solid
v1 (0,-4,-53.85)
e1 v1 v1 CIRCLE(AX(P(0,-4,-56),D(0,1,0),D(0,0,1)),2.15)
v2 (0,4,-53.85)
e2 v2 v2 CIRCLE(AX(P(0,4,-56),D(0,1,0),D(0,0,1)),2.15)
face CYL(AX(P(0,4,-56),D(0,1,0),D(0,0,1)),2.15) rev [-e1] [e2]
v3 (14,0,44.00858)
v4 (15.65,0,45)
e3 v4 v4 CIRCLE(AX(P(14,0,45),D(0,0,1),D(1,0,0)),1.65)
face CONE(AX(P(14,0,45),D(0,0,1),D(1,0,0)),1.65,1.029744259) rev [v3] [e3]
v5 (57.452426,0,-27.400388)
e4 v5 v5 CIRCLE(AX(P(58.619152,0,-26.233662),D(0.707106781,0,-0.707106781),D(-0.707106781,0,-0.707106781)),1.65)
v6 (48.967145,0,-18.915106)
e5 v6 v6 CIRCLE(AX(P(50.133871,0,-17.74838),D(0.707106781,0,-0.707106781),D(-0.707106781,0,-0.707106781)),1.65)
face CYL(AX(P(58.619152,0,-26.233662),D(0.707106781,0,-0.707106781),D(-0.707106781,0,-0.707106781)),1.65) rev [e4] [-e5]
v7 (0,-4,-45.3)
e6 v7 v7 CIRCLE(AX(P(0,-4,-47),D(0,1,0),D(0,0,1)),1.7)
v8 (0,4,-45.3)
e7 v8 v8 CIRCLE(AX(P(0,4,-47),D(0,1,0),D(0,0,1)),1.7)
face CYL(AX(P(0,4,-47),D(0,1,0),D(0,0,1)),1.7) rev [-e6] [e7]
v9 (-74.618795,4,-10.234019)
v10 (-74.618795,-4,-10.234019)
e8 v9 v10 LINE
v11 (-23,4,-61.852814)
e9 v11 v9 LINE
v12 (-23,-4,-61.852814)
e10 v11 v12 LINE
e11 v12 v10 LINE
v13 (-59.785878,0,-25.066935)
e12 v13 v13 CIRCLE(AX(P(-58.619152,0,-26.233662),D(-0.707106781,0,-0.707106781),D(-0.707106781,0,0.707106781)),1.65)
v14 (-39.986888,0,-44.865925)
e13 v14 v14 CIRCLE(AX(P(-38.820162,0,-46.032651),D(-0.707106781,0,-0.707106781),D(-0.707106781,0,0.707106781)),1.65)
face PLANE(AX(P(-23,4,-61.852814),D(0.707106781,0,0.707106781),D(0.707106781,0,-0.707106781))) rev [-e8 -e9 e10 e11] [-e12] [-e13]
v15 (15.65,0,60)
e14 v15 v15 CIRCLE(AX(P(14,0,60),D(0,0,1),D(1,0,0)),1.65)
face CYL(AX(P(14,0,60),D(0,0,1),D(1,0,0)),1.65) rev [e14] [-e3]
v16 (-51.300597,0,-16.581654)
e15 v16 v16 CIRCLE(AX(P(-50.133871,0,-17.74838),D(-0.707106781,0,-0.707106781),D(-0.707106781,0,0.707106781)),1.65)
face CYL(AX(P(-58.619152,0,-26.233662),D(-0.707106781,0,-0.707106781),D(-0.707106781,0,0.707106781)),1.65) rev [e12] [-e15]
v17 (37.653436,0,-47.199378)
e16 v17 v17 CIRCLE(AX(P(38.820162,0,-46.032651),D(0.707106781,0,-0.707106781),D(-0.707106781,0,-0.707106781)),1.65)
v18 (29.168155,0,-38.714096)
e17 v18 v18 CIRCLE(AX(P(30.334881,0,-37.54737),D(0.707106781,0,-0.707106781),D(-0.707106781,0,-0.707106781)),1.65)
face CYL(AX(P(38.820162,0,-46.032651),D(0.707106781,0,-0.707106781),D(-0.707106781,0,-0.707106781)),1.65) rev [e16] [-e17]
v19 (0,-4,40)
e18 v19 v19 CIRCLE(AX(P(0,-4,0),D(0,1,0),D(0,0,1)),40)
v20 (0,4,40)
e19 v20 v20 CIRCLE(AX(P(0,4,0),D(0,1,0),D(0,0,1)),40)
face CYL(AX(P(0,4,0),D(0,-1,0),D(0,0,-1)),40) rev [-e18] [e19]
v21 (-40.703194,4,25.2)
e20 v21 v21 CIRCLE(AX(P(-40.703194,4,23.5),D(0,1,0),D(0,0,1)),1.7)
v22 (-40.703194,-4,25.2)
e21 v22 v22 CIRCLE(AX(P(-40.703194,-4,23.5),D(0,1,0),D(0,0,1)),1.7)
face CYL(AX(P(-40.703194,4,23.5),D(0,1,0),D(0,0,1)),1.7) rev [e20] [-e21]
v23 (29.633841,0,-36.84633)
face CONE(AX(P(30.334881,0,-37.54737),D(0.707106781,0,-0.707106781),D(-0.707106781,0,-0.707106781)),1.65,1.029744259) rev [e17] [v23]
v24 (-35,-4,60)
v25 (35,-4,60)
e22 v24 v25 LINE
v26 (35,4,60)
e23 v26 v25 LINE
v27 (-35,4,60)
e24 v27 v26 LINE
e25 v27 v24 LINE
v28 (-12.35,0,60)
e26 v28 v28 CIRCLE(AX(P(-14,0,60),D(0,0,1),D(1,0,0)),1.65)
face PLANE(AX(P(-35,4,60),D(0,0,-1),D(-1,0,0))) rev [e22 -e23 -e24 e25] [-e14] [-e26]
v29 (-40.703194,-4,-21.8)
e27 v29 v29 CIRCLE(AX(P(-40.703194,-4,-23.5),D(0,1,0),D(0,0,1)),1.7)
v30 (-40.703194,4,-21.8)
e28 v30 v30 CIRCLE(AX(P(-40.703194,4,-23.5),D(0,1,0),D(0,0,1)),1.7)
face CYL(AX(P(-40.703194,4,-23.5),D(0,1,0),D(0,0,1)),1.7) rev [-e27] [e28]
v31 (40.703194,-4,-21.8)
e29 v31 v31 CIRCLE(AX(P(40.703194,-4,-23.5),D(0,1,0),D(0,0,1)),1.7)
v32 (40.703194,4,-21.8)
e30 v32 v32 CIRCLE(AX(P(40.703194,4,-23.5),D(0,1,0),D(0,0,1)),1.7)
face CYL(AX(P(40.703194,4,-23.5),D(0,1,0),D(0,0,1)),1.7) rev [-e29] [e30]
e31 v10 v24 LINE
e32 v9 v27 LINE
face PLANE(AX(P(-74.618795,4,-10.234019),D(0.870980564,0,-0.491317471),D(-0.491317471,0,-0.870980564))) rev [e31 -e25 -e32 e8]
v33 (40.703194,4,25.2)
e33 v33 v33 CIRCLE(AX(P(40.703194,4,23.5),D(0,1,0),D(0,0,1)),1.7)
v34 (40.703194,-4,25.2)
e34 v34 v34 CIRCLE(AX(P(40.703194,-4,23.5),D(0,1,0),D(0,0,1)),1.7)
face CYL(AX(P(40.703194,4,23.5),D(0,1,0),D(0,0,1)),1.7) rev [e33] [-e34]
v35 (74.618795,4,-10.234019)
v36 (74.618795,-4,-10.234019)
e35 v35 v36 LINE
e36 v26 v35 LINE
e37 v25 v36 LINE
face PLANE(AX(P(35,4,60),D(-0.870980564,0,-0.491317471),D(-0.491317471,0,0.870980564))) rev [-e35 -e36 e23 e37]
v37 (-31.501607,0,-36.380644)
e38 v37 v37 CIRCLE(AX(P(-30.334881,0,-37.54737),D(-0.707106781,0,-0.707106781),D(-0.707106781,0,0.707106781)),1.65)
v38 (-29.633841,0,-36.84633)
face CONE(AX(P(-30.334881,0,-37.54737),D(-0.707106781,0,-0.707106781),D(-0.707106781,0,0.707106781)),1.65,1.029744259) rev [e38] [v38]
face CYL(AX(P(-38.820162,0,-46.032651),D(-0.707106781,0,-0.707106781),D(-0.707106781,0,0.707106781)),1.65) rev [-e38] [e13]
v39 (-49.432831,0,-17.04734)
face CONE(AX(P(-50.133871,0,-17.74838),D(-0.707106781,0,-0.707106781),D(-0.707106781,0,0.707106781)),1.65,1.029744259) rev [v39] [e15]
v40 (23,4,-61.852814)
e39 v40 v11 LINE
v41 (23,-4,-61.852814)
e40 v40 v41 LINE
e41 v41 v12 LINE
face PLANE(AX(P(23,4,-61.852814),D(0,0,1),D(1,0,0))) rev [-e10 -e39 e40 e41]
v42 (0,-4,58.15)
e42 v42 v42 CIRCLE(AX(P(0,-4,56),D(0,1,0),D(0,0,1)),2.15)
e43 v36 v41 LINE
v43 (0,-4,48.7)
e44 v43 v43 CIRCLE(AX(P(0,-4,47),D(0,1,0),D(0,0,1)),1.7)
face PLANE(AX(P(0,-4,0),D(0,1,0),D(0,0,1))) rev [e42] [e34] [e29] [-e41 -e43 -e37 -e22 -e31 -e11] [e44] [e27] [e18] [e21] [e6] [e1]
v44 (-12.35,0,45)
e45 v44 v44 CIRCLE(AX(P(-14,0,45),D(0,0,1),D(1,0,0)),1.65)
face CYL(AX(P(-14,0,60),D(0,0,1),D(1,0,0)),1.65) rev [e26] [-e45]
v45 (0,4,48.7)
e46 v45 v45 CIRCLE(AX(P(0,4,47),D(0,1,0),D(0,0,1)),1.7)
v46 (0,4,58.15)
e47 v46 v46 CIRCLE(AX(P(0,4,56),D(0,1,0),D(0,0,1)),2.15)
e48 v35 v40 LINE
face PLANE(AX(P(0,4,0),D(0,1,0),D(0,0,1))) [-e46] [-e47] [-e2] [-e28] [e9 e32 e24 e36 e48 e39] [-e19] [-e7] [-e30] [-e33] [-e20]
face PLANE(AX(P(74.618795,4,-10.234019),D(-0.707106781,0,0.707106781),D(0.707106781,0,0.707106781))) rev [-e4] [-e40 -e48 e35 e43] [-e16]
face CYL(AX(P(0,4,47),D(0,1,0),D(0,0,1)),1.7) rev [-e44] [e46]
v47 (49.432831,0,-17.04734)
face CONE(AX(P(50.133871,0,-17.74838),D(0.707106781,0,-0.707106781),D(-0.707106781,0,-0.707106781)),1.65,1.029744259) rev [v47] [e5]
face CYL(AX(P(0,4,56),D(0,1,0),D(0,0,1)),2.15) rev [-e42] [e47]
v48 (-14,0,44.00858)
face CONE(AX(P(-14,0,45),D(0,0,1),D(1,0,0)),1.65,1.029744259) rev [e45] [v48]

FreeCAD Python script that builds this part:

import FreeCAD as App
import Part
import Sketcher
from FreeCAD import Vector
Q = App.Units.Quantity


def add_polygon(sketch, points):
    """Adds a closed chain of lines whose ends are joined by coincident constraints."""
    first, n = sketch.GeometryCount, len(points)
    for a, b in zip(points, points[1:] + points[:1]):
        sketch.addGeometry(Part.LineSegment(App.Vector(*a, 0), App.Vector(*b, 0)), False)
    for i in range(n):
        sketch.addConstraint(Sketcher.Constraint("Coincident", first + i, 2, first + (i + 1) % n, 1))

doc = App.newDocument("Part")
body = doc.addObject("PartDesign::Body", "Body")

sketch1 = body.newObject("Sketcher::SketchObject", "Sketch")
sketch1.AttachmentSupport = (doc.getObject("XZ_Plane"), [""])
sketch1.MapMode = "FlatFace"
add_polygon(sketch1, [(23, -62), (-23, -62), (-75, -10), (-35, 60), (35, 60), (75, -10)])
sketch1.addGeometry(Part.Circle(Vector(0, 0, 0), Vector(0, 0, 1), 40), False)
sketch1.addConstraint([
    Sketcher.Constraint("Horizontal", 0),
    Sketcher.Constraint("Horizontal", 3),
    Sketcher.Constraint("Coincident", 6, 3, -1, 1),
    Sketcher.Constraint("Symmetric", 1, 2, 4, 2, -2),
    Sketcher.Constraint("Perpendicular", 1, 5),
    Sketcher.Constraint("Equal", 2, 4),
    Sketcher.Constraint("Equal", 1, 5),
    Sketcher.Constraint("Diameter", 6, 80.0),
    Sketcher.Constraint("DistanceX", 0, 2, 0, 1, 46.0),
    Sketcher.Constraint("DistanceX", 3, 1, 3, 2, 70.0),
    Sketcher.Constraint("Distance", 1, 73.0),
    Sketcher.Constraint("DistanceY", -1, 1, 2, 2, 60.0),
    Sketcher.Constraint("Distance", 2, 80.637871),
])
pad1 = body.newObject("PartDesign::Pad", "Pad")
pad1.Profile = sketch1
pad1.Length = 8
pad1.Midplane = True

sketch2 = body.newObject("Sketcher::SketchObject", "Sketch001")
sketch2.AttachmentSupport = (doc.getObject("XZ_Plane"), [""])
sketch2.MapMode = "FlatFace"
sketch2.AttachmentOffset = App.Placement(Vector(0, 0, -4), App.Rotation())
sketch2.addGeometry([
    Part.Circle(Vector(0, -47, 0), Vector(0, 0, 1), 1.7),
    Part.Circle(Vector(40.7, -23.5, 0), Vector(0, 0, 1), 1.7),
    Part.Circle(Vector(40.7, 23.5, 0), Vector(0, 0, 1), 1.7),
    Part.Circle(Vector(0, 47, 0), Vector(0, 0, 1), 1.7),
    Part.Circle(Vector(-40.7, 23.5, 0), Vector(0, 0, 1), 1.7),
    Part.Circle(Vector(-40.7, -23.5, 0), Vector(0, 0, 1), 1.7),
], False)
sketch2.addConstraint([
    Sketcher.Constraint("Equal", 0, 1),
    Sketcher.Constraint("Equal", 1, 2),
    Sketcher.Constraint("Equal", 2, 3),
    Sketcher.Constraint("Equal", 3, 4),
    Sketcher.Constraint("Equal", 4, 5),
    Sketcher.Constraint("Symmetric", 0, 3, 3, 3, -1, 1),
    Sketcher.Constraint("Symmetric", 1, 3, 4, 3, -1, 1),
    Sketcher.Constraint("Symmetric", 2, 3, 5, 3, -1, 1),
    Sketcher.Constraint("Symmetric", 2, 3, 4, 3, -2),
    Sketcher.Constraint("PointOnObject", 0, 3, -2),
    Sketcher.Constraint("Diameter", 0, 3.4),
    Sketcher.Constraint("DistanceY", 0, 3, -1, 1, 47.0),
    Sketcher.Constraint("DistanceY", 1, 3, 2, 3, 47.0),
    Sketcher.Constraint("DistanceX", -1, 1, 1, 3, 40.703194),
])
doc.recompute()
hole = body.newObject("PartDesign::Hole", "Hole")
hole.Profile = sketch2
hole.ThreadType = "None"
hole.Diameter = 3.4
hole.DepthType = "ThroughAll"
hole.Reversed = True

sketch3 = body.newObject("Sketcher::SketchObject", "Sketch002")
sketch3.AttachmentSupport = (doc.getObject("XZ_Plane"), [""])
sketch3.MapMode = "FlatFace"
add_polygon(sketch3, [(29.6, -36.8), (38.8, -46), (37.7, -47.2), (29.2, -38.7)])
sketch3.addGeometry(Part.LineSegment(Vector(38.8, -46, 0), Vector(29.6, -36.8, 0)), True)
sketch3.addConstraint([
    Sketcher.Constraint("Coincident", 4, 1, 0, 2),
    Sketcher.Constraint("Coincident", 4, 2, 3, 2),
    Sketcher.Constraint("Perpendicular", 0, 1),
    Sketcher.Constraint("Perpendicular", 1, 2),
    Sketcher.Constraint("Angle", 0, Q("-45 deg")),
    Sketcher.Constraint("Angle", 3, Q("76 deg")),
    Sketcher.Constraint("Distance", 2, 12.0),
    Sketcher.Constraint("Distance", 1, 1.65),
    Sketcher.Constraint("DistanceY", 0, 2, -1, 1, 46.032651),
    Sketcher.Constraint("DistanceX", -1, 1, 3, 2, 29.633841),
])
groove = body.newObject("PartDesign::Groove", "Groove")
groove.Profile = sketch3
groove.ReferenceAxis = (sketch3, ["Axis0"])
groove.Angle = 360
doc.recompute()

datumline = body.newObject("PartDesign::Line", "DatumLine")
datumline.Placement = App.Placement(Vector(0, 0, 0), App.Rotation(Vector(0, 0, 1), Vector(0.707106781, 0, 0.707106781)))
linearpattern = body.newObject("PartDesign::LinearPattern", "LinearPattern")
linearpattern.Originals = [groove]
linearpattern.Direction = (datumline, [""])
linearpattern.Mode = "offset"
linearpattern.Offset = 28
linearpattern.Occurrences = 2
body.Tip = linearpattern
doc.recompute()

mirrored = body.newObject("PartDesign::Mirrored", "Mirrored")
mirrored.Originals = [groove]
mirrored.MirrorPlane = (doc.getObject("YZ_Plane"), [""])
body.Tip = mirrored

sketch4 = body.newObject("Sketcher::SketchObject", "Sketch003")
sketch4.AttachmentSupport = (doc.getObject("XZ_Plane"), [""])
sketch4.MapMode = "FlatFace"
add_polygon(sketch4, [(-58.6, -26.2), (-49.4, -17), (-49, -18.9), (-57.5, -27.4)])
sketch4.addGeometry(Part.LineSegment(Vector(-49.4, -17, 0), Vector(-58.6, -26.2, 0)), True)
sketch4.addConstraint([
    Sketcher.Constraint("Coincident", 4, 1, 0, 2),
    Sketcher.Constraint("Coincident", 4, 2, 3, 2),
    Sketcher.Constraint("Parallel", 0, 2),
    Sketcher.Constraint("Perpendicular", 2, 3),
    Sketcher.Constraint("Angle", 0, Q("45 deg")),
    Sketcher.Constraint("Angle", 1, Q("-76 deg")),
    Sketcher.Constraint("Distance", 2, 12.0),
    Sketcher.Constraint("Distance", 3, 1.65),
    Sketcher.Constraint("DistanceX", 0, 2, -1, 1, 49.432831),
    Sketcher.Constraint("DistanceY", 0, 2, -1, 1, 17.04734),
])
groove2 = body.newObject("PartDesign::Groove", "Groove001")
groove2.Profile = sketch4
groove2.ReferenceAxis = (sketch4, ["Axis0"])
groove2.Angle = 360

sketch5 = body.newObject("Sketcher::SketchObject", "Sketch004")
sketch5.AttachmentSupport = (doc.getObject("XY_Plane"), [""])
sketch5.MapMode = "FlatFace"
sketch5.AttachmentOffset = App.Placement(Vector(0, 0, 60), App.Rotation())
sketch5.addGeometry([
    Part.Circle(Vector(14, 0, 0), Vector(0, 0, 1), 1.6),
    Part.Circle(Vector(-14, 0, 0), Vector(0, 0, 1), 1.6),
], False)
sketch5.addConstraint([
    Sketcher.Constraint("Equal", 0, 1),
    Sketcher.Constraint("Symmetric", 0, 3, 1, 3, -1, 1),
    Sketcher.Constraint("PointOnObject", 0, 3, -1),
    Sketcher.Constraint("Diameter", 0, 3.3),
    Sketcher.Constraint("DistanceX", -1, 1, 0, 3, 14.0),
])
doc.recompute()
hole2 = body.newObject("PartDesign::Hole", "Hole001")
hole2.Profile = sketch5
hole2.ThreadType = "None"
hole2.Diameter = 3.3
hole2.DepthType = "Dimension"
hole2.Depth = 15
hole2.DrillPoint = "Angled"
hole2.DrillPointAngle = 118

sketch6 = body.newObject("Sketcher::SketchObject", "Sketch005")
sketch6.AttachmentSupport = (doc.getObject("XZ_Plane"), [""])
sketch6.MapMode = "FlatFace"
sketch6.AttachmentOffset = App.Placement(Vector(0, 0, -4), App.Rotation())
sketch6.addGeometry([
    Part.Circle(Vector(0, -56, 0), Vector(0, 0, 1), 2.1),
    Part.Circle(Vector(0, 56, 0), Vector(0, 0, 1), 2.1),
], False)
sketch6.addConstraint([
    Sketcher.Constraint("Equal", 0, 1),
    Sketcher.Constraint("Symmetric", 0, 3, 1, 3, -1, 1),
    Sketcher.Constraint("PointOnObject", 0, 3, -2),
    Sketcher.Constraint("Diameter", 0, 4.3),
    Sketcher.Constraint("DistanceY", 0, 3, -1, 1, 56.0),
])
doc.recompute()
hole3 = body.newObject("PartDesign::Hole", "Hole002")
hole3.Profile = sketch6
hole3.ThreadType = "None"
hole3.Diameter = 4.3
hole3.DepthType = "ThroughAll"
hole3.Reversed = True

doc.recompute()
